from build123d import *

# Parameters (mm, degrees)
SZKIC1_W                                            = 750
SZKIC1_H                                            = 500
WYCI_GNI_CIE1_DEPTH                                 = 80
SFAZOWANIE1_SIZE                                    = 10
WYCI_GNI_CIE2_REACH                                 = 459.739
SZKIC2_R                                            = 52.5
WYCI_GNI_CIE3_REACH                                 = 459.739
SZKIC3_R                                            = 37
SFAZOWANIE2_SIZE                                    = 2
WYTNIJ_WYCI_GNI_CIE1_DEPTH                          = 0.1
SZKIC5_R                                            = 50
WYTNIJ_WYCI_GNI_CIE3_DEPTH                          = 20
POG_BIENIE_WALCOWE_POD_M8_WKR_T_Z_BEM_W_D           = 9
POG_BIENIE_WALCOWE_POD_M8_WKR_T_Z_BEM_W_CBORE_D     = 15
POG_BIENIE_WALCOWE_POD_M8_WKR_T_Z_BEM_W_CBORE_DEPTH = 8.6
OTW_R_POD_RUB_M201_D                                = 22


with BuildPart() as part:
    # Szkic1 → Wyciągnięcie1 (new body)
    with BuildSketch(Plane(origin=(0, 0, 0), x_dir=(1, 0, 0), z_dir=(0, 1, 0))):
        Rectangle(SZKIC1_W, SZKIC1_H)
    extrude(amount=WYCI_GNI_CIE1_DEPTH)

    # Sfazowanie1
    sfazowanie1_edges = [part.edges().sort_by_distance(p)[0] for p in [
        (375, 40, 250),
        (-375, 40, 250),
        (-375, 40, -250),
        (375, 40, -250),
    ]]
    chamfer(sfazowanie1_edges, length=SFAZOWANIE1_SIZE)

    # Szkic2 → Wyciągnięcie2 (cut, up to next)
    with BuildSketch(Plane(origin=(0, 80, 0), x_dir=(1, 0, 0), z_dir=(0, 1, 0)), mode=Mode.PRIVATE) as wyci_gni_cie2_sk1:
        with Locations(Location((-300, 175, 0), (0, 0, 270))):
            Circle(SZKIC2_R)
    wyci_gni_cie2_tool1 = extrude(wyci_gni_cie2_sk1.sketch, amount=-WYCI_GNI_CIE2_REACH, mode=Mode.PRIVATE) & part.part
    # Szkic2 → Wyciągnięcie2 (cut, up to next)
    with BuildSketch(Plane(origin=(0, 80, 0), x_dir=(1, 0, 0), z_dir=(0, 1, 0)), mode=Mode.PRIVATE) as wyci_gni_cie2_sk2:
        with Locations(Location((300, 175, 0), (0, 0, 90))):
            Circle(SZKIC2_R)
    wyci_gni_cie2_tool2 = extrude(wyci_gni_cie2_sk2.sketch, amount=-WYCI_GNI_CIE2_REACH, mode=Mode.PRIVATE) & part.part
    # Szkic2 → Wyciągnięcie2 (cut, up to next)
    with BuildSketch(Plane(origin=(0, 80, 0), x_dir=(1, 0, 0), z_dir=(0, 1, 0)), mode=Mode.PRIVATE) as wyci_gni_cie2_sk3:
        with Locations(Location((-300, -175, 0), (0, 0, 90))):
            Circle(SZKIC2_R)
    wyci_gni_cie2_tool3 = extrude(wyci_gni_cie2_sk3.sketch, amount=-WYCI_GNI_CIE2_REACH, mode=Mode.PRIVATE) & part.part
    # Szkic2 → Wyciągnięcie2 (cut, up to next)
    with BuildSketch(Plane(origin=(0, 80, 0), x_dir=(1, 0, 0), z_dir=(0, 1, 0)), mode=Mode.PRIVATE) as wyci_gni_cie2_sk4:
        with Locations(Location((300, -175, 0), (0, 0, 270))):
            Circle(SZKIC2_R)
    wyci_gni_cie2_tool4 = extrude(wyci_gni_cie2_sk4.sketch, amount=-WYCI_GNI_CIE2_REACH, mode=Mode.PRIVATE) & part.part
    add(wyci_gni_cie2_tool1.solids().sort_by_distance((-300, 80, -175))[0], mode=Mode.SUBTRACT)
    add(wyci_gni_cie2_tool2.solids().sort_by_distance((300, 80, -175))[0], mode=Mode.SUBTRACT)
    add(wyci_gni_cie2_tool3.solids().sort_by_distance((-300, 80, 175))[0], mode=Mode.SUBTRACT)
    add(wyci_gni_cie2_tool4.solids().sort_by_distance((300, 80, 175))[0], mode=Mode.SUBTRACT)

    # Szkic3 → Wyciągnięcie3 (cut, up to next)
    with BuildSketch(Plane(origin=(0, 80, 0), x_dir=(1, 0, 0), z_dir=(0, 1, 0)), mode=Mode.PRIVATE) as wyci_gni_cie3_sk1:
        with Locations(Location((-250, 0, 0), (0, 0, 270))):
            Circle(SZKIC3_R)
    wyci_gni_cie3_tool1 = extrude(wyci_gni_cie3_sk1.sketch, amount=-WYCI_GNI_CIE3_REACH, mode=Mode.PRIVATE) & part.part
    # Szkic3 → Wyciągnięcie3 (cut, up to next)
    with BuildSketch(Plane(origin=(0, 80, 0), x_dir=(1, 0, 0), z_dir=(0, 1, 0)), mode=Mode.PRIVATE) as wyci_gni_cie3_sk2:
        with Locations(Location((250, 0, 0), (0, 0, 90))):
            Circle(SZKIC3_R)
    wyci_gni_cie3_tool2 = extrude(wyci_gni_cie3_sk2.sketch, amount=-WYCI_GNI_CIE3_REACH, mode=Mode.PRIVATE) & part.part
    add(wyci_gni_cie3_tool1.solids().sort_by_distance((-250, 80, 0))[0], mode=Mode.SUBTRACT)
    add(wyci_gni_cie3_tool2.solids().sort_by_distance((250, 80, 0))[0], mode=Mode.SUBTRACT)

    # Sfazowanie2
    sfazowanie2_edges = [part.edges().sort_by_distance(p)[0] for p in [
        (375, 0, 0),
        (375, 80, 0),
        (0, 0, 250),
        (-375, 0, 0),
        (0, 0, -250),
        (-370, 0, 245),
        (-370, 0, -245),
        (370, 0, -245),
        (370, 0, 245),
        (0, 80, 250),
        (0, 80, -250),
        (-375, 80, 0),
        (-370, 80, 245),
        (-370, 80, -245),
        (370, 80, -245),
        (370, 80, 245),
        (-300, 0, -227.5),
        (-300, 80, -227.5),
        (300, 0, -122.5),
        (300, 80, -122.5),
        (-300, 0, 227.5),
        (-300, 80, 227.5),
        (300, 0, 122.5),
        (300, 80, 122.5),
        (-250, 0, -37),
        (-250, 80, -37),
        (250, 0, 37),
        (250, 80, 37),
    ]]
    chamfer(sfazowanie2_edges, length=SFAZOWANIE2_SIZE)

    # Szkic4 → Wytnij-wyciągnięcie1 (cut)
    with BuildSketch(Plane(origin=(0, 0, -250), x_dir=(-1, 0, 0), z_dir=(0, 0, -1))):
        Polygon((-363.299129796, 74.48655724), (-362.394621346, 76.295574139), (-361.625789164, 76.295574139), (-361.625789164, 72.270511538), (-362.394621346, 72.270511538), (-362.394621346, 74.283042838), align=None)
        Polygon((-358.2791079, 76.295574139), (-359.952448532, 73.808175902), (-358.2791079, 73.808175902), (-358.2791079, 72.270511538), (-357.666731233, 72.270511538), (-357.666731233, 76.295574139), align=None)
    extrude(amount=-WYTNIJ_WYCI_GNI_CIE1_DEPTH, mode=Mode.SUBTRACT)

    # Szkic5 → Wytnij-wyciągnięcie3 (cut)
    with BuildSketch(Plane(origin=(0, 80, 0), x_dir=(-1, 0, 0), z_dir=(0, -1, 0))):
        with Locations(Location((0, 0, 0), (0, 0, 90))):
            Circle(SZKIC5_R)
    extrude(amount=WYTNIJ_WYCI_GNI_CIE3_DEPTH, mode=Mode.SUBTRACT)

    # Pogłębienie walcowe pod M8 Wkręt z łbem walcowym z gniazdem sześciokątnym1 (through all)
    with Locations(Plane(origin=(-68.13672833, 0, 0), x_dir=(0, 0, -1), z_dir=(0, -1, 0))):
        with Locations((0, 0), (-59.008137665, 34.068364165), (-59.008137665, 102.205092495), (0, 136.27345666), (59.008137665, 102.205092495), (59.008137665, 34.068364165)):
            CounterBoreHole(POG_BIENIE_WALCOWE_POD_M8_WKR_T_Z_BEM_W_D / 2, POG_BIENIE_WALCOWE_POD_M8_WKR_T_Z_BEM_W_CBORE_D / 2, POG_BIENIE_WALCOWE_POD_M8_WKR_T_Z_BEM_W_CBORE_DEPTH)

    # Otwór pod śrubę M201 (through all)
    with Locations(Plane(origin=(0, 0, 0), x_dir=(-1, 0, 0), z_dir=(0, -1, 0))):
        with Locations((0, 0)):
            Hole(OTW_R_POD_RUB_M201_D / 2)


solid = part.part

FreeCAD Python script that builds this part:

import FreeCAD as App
import Part
import Sketcher

V = App.Vector
Q = App.Units.Quantity


def edges_at(feature, points):
    """Names of the edges that pass closest to the given points."""
    edges = feature.Shape.Edges
    near = lambda p: min(range(len(edges)), key=lambda i: edges[i].distToShape(Part.Vertex(*p))[0])
    return sorted({f"Edge{near(p) + 1}" for p in points})


def add_polygon(sketch, points):
    """Adds a closed chain of lines whose ends are joined by coincident constraints."""
    first, n = sketch.GeometryCount, len(points)
    for a, b in zip(points, points[1:] + points[:1]):
        sketch.addGeometry(Part.LineSegment(App.Vector(*a, 0), App.Vector(*b, 0)), False)
    for i in range(n):
        sketch.addConstraint(Sketcher.Constraint("Coincident", first + i, 2, first + (i + 1) % n, 1))

doc = App.newDocument("Part")
body = doc.addObject("PartDesign::Body", "Body")

# Sketch on XZ plane
sketch1 = body.newObject("Sketcher::SketchObject", "Sketch")
sketch1.AttachmentSupport = (doc.getObject("XZ_Plane"), [""])
sketch1.MapMode = "FlatFace"
add_polygon(sketch1, [(-375, -250), (-375, 250), (375, 250), (375, -250)])  # lines 0-3
sketch1.addConstraint([
    Sketcher.Constraint("Vertical", 0),
    Sketcher.Constraint("Horizontal", 1),
    Sketcher.Constraint("Vertical", 2),
    Sketcher.Constraint("Horizontal", 3),
    Sketcher.Constraint("Symmetric", 0, 2, 2, 2, -1, 1),
    Sketcher.Constraint("DistanceX", 1, 1, 1, 2, Q("750 mm")),
    Sketcher.Constraint("DistanceY", 0, 1, 0, 2, Q("500 mm")),
])
pad1 = body.newObject("PartDesign::Pad", "Pad")
pad1.Profile = sketch1
pad1.Length = 80
pad1.Reversed = True
doc.recompute()

chamfer = body.newObject("PartDesign::Chamfer", "Chamfer")
chamfer.Base = (pad1, edges_at(pad1, [
    (375, 40, 250),
    (-375, 40, 250),
    (-375, 40, -250),
    (375, 40, -250),
]))
chamfer.Size = 10

# Sketch on XZ plane
sketch2 = body.newObject("Sketcher::SketchObject", "Sketch001")
sketch2.AttachmentSupport = (doc.getObject("XZ_Plane"), [""])
sketch2.MapMode = "FlatFace"
sketch2.AttachmentOffset = App.Placement(V(0, 0, -80), App.Rotation())
sketch2.addGeometry(Part.Circle(V(-300, -175, 0), V(0, 0, 1), 52), False)
sketch2.addConstraint([
    Sketcher.Constraint("Diameter", 0, Q("105 mm")),
    Sketcher.Constraint("DistanceX", 0, 3, -1, 1, Q("300 mm")),
    Sketcher.Constraint("DistanceY", 0, 3, -1, 1, Q("175 mm")),
])
pocket1 = body.newObject("PartDesign::Pocket", "Pocket")
pocket1.Profile = sketch2
pocket1.Type = "UpToFirst"
pocket1.Reversed = True

# Sketch on XZ plane
sketch3 = body.newObject("Sketcher::SketchObject", "Sketch002")
sketch3.AttachmentSupport = (doc.getObject("XZ_Plane"), [""])
sketch3.MapMode = "FlatFace"
sketch3.AttachmentOffset = App.Placement(V(0, 0, -80), App.Rotation())
sketch3.addGeometry(Part.Circle(V(300, -175, 0), V(0, 0, 1), 52), False)
sketch3.addConstraint([
    Sketcher.Constraint("Diameter", 0, Q("105 mm")),
    Sketcher.Constraint("DistanceX", -1, 1, 0, 3, Q("300 mm")),
    Sketcher.Constraint("DistanceY", 0, 3, -1, 1, Q("175 mm")),
])
pocket2 = body.newObject("PartDesign::Pocket", "Pocket001")
pocket2.Profile = sketch3
pocket2.Type = "UpToFirst"
pocket2.Reversed = True

# Sketch on XZ plane
sketch4 = body.newObject("Sketcher::SketchObject", "Sketch003")
sketch4.AttachmentSupport = (doc.getObject("XZ_Plane"), [""])
sketch4.MapMode = "FlatFace"
sketch4.AttachmentOffset = App.Placement(V(0, 0, -80), App.Rotation())
sketch4.addGeometry(Part.Circle(V(-300, 175, 0), V(0, 0, 1), 52), False)
sketch4.addConstraint([
    Sketcher.Constraint("Diameter", 0, Q("105 mm")),
    Sketcher.Constraint("DistanceX", 0, 3, -1, 1, Q("300 mm")),
    Sketcher.Constraint("DistanceY", -1, 1, 0, 3, Q("175 mm")),
])
pocket3 = body.newObject("PartDesign::Pocket", "Pocket002")
pocket3.Profile = sketch4
pocket3.Type = "UpToFirst"
pocket3.Reversed = True

# Sketch on XZ plane
sketch5 = body.newObject("Sketcher::SketchObject", "Sketch004")
sketch5.AttachmentSupport = (doc.getObject("XZ_Plane"), [""])
sketch5.MapMode = "FlatFace"
sketch5.AttachmentOffset = App.Placement(V(0, 0, -80), App.Rotation())
sketch5.addGeometry(Part.Circle(V(300, 175, 0), V(0, 0, 1), 52), False)
sketch5.addConstraint([
    Sketcher.Constraint("Diameter", 0, Q("105 mm")),
    Sketcher.Constraint("DistanceX", -1, 1, 0, 3, Q("300 mm")),
    Sketcher.Constraint("DistanceY", -1, 1, 0, 3, Q("175 mm")),
])
pocket4 = body.newObject("PartDesign::Pocket", "Pocket003")
pocket4.Profile = sketch5
pocket4.Type = "UpToFirst"
pocket4.Reversed = True

# Sketch on XZ plane
sketch6 = body.newObject("Sketcher::SketchObject", "Sketch005")
sketch6.AttachmentSupport = (doc.getObject("XZ_Plane"), [""])
sketch6.MapMode = "FlatFace"
sketch6.AttachmentOffset = App.Placement(V(0, 0, -80), App.Rotation())
sketch6.addGeometry(Part.Circle(V(-250, 0, 0), V(0, 0, 1), 37), False)
sketch6.addConstraint([
    Sketcher.Constraint("PointOnObject", 0, 3, -1),
    Sketcher.Constraint("Diameter", 0, Q("74 mm")),
    Sketcher.Constraint("DistanceX", 0, 3, -1, 1, Q("250 mm")),
])
pocket5 = body.newObject("PartDesign::Pocket", "Pocket004")
pocket5.Profile = sketch6
pocket5.Type = "UpToFirst"
pocket5.Reversed = True

# Sketch on XZ plane
sketch7 = body.newObject("Sketcher::SketchObject", "Sketch006")
sketch7.AttachmentSupport = (doc.getObject("XZ_Plane"), [""])
sketch7.MapMode = "FlatFace"
sketch7.AttachmentOffset = App.Placement(V(0, 0, -80), App.Rotation())
sketch7.addGeometry(Part.Circle(V(250, 0, 0), V(0, 0, 1), 37), False)
sketch7.addConstraint([
    Sketcher.Constraint("PointOnObject", 0, 3, -1),
    Sketcher.Constraint("Diameter", 0, Q("74 mm")),
    Sketcher.Constraint("DistanceX", -1, 1, 0, 3, Q("250 mm")),
])
pocket6 = body.newObject("PartDesign::Pocket", "Pocket005")
pocket6.Profile = sketch7
pocket6.Type = "UpToFirst"
pocket6.Reversed = True
doc.recompute()

chamfer2 = body.newObject("PartDesign::Chamfer", "Chamfer001")
chamfer2.Base = (pocket6, edges_at(pocket6, [
    (375, 0, 0),
    (375, 80, 0),
    (0, 0, 250),
    (-375, 0, 0),
    (0, 0, -250),
    (-370, 0, 245),
    (-370, 0, -245),
    (370, 0, -245),
    (370, 0, 245),
    (0, 80, 250),
    (0, 80, -250),
    (-375, 80, 0),
    (-370, 80, 245),
    (-370, 80, -245),
    (370, 80, -245),
    (370, 80, 245),
    (-300, 0, -227.5),
    (-300, 80, -227.5),
    (300, 0, -122.5),
    (300, 80, -122.5),
    (-300, 0, 227.5),
    (-300, 80, 227.5),
    (300, 0, 122.5),
    (300, 80, 122.5),
    (-250, 0, -37),
    (-250, 80, -37),
    (250, 0, 37),
    (250, 80, 37),
]))
chamfer2.Size = 2

# Sketch on XY plane
sketch8 = body.newObject("Sketcher::SketchObject", "Sketch007")
sketch8.AttachmentSupport = (doc.getObject("XY_Plane"), [""])
sketch8.MapMode = "FlatFace"
sketch8.AttachmentOffset = App.Placement(V(0, 0, -250), App.Rotation())
add_polygon(sketch8, [(362.4, 76.3), (363.3, 74.5), (362.4, 74.3), (362.4, 72.3), (361.6, 72.3), (361.6, 76.3)])  # lines 0-5
add_polygon(sketch8, [(358.3, 76.3), (360, 73.8), (358.3, 73.8), (358.3, 72.3), (357.7, 72.3), (357.7, 76.3)])  # lines 6-11
sketch8.addConstraint([
    Sketcher.Constraint("Vertical", 2),
    Sketcher.Constraint("Horizontal", 3),
    Sketcher.Constraint("Vertical", 4),
    Sketcher.Constraint("Horizontal", 5),
    Sketcher.Constraint("Horizontal", 7),
    Sketcher.Constraint("Vertical", 8),
    Sketcher.Constraint("Horizontal", 9),
    Sketcher.Constraint("Vertical", 10),
    Sketcher.Constraint("Horizontal", 11),
    Sketcher.Constraint("Horizontal", 3, 2, 8, 2),
    Sketcher.Constraint("Horizontal", 5, 2, 10, 2),
    Sketcher.Constraint("Vertical", 2, 2, 5, 2),
    Sketcher.Constraint("Vertical", 8, 2, 11, 2),
    Sketcher.Constraint("DistanceX", 7, 2, 7, 1, Q("1.673341 mm")),
    Sketcher.Constraint("DistanceY", 2, 2, 2, 1, Q("2.012531 mm")),
    Sketcher.Constraint("DistanceY", 6, 2, 4, 2, Q("2.487398 mm")),
    Sketcher.Constraint("Distance", 1, Q("0.927121 mm")),
    Sketcher.Constraint("DistanceX", 3, 2, 3, 1, Q("0.768832 mm")),
    Sketcher.Constraint("DistanceX", 9, 2, 9, 1, Q("0.612377 mm")),
    Sketcher.Constraint("DistanceY", 4, 1, 4, 2, Q("4.025063 mm")),
    Sketcher.Constraint("DistanceX", -1, 1, 0, 2, Q("363.29913 mm")),
    Sketcher.Constraint("DistanceX", -1, 1, 1, 2, Q("362.394621 mm")),
    Sketcher.Constraint("DistanceY", -1, 1, 2, 2, Q("72.270512 mm")),
    Sketcher.Constraint("DistanceX", -1, 1, 6, 2, Q("359.952449 mm")),
])
pocket7 = body.newObject("PartDesign::Pocket", "Pocket006")
pocket7.Profile = sketch8
pocket7.Length = 0.1
pocket7.Reversed = True

# Sketch on XZ plane
sketch9 = body.newObject("Sketcher::SketchObject", "Sketch008")
sketch9.AttachmentSupport = (doc.getObject("XZ_Plane"), [""])
sketch9.MapMode = "FlatFace"
sketch9.AttachmentOffset = App.Placement(V(0, 0, -80), App.Rotation())
sketch9.addGeometry(Part.Circle(V(0, 0, 0), V(0, 0, 1), 50), False)
sketch9.addConstraint([
    Sketcher.Constraint("Coincident", 0, 3, -1, 1),
    Sketcher.Constraint("Diameter", 0, Q("100 mm")),
])
pocket8 = body.newObject("PartDesign::Pocket", "Pocket007")
pocket8.Profile = sketch9
pocket8.Length = 20
pocket8.Reversed = True

# Sketch on XZ plane
sketch10 = body.newObject("Sketcher::SketchObject", "Sketch009")
sketch10.AttachmentSupport = (doc.getObject("XZ_Plane"), [""])
sketch10.MapMode = "FlatFace"
sketch10.addGeometry([
    Part.Circle(V(-68.1, 0, 0), V(0, 0, 1), 4.5),  # 0
    Part.Circle(V(-34.1, 59, 0), V(0, 0, 1), 4.5),  # 1
    Part.Circle(V(34.1, 59, 0), V(0, 0, 1), 4.5),  # 2
    Part.Circle(V(68.1, 0, 0), V(0, 0, 1), 4.5),  # 3
    Part.Circle(V(34.1, -59, 0), V(0, 0, 1), 4.5),  # 4
    Part.Circle(V(-34.1, -59, 0), V(0, 0, 1), 4.5),  # 5
], False)
sketch10.addConstraint([
    Sketcher.Constraint("Equal", 0, 1),
    Sketcher.Constraint("Equal", 1, 2),
    Sketcher.Constraint("Equal", 2, 3),
    Sketcher.Constraint("Equal", 3, 4),
    Sketcher.Constraint("Equal", 4, 5),
    Sketcher.Constraint("Symmetric", 0, 3, 3, 3, -1, 1),
    Sketcher.Constraint("Symmetric", 1, 3, 4, 3, -1, 1),
    Sketcher.Constraint("Symmetric", 2, 3, 5, 3, -1, 1),
    Sketcher.Constraint("Symmetric", 1, 3, 2, 3, -2),
    Sketcher.Constraint("PointOnObject", 0, 3, -1),
    Sketcher.Constraint("Diameter", 0, Q("9 mm")),
    Sketcher.Constraint("DistanceX", 0, 3, -1, 1, Q("68.136728 mm")),
    Sketcher.Constraint("DistanceX", 1, 3, 2, 3, Q("68.136728 mm")),
    Sketcher.Constraint("DistanceY", -1, 1, 1, 3, Q("59.008138 mm")),
])
doc.recompute()
hole = body.newObject("PartDesign::Hole", "Hole")
hole.Profile = sketch10
hole.ThreadType = "None"
hole.Diameter = 9
hole.DepthType = "ThroughAll"
hole.HoleCutType = "Counterbore"
hole.HoleCutDiameter = 15
hole.HoleCutDepth = 8.6

# Sketch on XZ plane
sketch11 = body.newObject("Sketcher::SketchObject", "Sketch010")
sketch11.AttachmentSupport = (doc.getObject("XZ_Plane"), [""])
sketch11.MapMode = "FlatFace"
sketch11.addGeometry(Part.Circle(V(0, 0, 0), V(0, 0, 1), 11), False)
sketch11.addConstraint([
    Sketcher.Constraint("Coincident", 0, 3, -1, 1),
    Sketcher.Constraint("Diameter", 0, Q("22 mm")),
])
doc.recompute()
hole2 = body.newObject("PartDesign::Hole", "Hole001")
hole2.Profile = sketch11
hole2.ThreadType = "None"
hole2.Diameter = 22
hole2.DepthType = "ThroughAll"

doc.recompute()
